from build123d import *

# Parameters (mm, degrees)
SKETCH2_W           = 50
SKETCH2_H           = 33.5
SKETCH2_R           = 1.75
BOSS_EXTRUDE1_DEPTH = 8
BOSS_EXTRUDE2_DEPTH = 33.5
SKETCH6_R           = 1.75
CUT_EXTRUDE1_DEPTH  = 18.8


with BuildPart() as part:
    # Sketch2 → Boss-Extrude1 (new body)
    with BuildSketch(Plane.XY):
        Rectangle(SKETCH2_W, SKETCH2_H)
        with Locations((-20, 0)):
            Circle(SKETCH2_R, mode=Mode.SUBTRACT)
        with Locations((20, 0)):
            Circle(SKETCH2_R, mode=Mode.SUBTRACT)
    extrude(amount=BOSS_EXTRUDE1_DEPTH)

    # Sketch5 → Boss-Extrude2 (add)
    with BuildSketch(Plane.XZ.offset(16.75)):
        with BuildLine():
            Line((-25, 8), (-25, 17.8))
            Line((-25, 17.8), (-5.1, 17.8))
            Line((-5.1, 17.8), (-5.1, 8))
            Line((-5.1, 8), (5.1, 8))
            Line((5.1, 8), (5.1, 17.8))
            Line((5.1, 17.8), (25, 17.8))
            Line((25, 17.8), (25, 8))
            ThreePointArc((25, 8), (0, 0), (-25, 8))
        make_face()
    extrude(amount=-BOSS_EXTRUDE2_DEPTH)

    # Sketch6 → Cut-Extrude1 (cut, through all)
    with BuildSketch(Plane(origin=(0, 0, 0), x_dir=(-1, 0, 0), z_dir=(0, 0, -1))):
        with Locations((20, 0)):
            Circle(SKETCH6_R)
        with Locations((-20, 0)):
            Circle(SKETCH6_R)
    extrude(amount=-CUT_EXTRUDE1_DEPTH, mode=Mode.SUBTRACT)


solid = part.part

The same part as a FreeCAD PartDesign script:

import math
import FreeCAD as App
import Part
import Sketcher
from FreeCAD import Vector
Q = App.Units.Quantity

doc = App.newDocument("Part")
body = doc.addObject("PartDesign::Body", "Body")

# Sketch on XY plane
sketch1 = body.newObject("Sketcher::SketchObject", "Sketch")
sketch1.AttachmentSupport = (doc.getObject("XY_Plane"), [""])
sketch1.MapMode = "FlatFace"
sketch1.addGeometry(Part.LineSegment(Vector(-25, 16.75, 0), Vector(-25, -16.75, 0)), False)
sketch1.addGeometry(Part.LineSegment(Vector(-25, -16.75, 0), Vector(25, -16.75, 0)), False)
sketch1.addGeometry(Part.LineSegment(Vector(25, -16.75, 0), Vector(25, 16.75, 0)), False)
sketch1.addGeometry(Part.LineSegment(Vector(25, 16.75, 0), Vector(-25, 16.75, 0)), False)
sketch1.addGeometry(Part.Circle(Vector(-20, 0, 0), Vector(0, 0, 1), 1.75), False)
sketch1.addGeometry(Part.Circle(Vector(20, 0, 0), Vector(0, 0, 1), 1.75), False)
sketch1.addConstraint(Sketcher.Constraint("Coincident", 0, 2, 1, 1))
sketch1.addConstraint(Sketcher.Constraint("Coincident", 1, 2, 2, 1))
sketch1.addConstraint(Sketcher.Constraint("Coincident", 2, 2, 3, 1))
sketch1.addConstraint(Sketcher.Constraint("Coincident", 3, 2, 0, 1))
sketch1.addConstraint(Sketcher.Constraint("Vertical", 0))
sketch1.addConstraint(Sketcher.Constraint("Horizontal", 1))
sketch1.addConstraint(Sketcher.Constraint("Vertical", 2))
sketch1.addConstraint(Sketcher.Constraint("Horizontal", 3))
sketch1.addConstraint(Sketcher.Constraint("Equal", 4, 5))
sketch1.addConstraint(Sketcher.Constraint("Symmetric", 4, 3, 5, 3, -1, 1))
sketch1.addConstraint(Sketcher.Constraint("Symmetric", 0, 2, 2, 2, -1, 1))
sketch1.addConstraint(Sketcher.Constraint("PointOnObject", 4, 3, -1))
sketch1.addConstraint(Sketcher.Constraint("Diameter", 4, Q("3.5 mm")))
sketch1.addConstraint(Sketcher.Constraint("DistanceX", 1, 1, 1, 2, Q("50 mm")))
sketch1.addConstraint(Sketcher.Constraint("DistanceY", 0, 2, 0, 1, Q("33.5 mm")))
sketch1.addConstraint(Sketcher.Constraint("DistanceX", 4, 3, -1, 1, Q("20 mm")))
pad1 = body.newObject("PartDesign::Pad", "Pad")
pad1.Profile = sketch1
pad1.Length = 8

# Sketch on XZ plane
sketch2 = body.newObject("Sketcher::SketchObject", "Sketch001")
sketch2.AttachmentSupport = (doc.getObject("XZ_Plane"), [""])
sketch2.MapMode = "FlatFace"
sketch2.AttachmentOffset = App.Placement(Vector(0, 0, 16.75), App.Rotation())
sketch2.addGeometry(Part.LineSegment(Vector(-25, 17.8, 0), Vector(-25, 8, 0)), False)
sketch2.addGeometry(Part.ArcOfCircle(Part.Circle(Vector(0, 43.0625, 0), Vector(0, 0, 1), 43.0625), math.radians(-125.489343), math.radians(-54.510657)), False)
sketch2.addGeometry(Part.LineSegment(Vector(25, 8, 0), Vector(25, 17.8, 0)), False)
sketch2.addGeometry(Part.LineSegment(Vector(25, 17.8, 0), Vector(5.1, 17.8, 0)), False)
sketch2.addGeometry(Part.LineSegment(Vector(5.1, 17.8, 0), Vector(5.1, 8, 0)), False)
sketch2.addGeometry(Part.LineSegment(Vector(5.1, 8, 0), Vector(-5.1, 8, 0)), False)
sketch2.addGeometry(Part.LineSegment(Vector(-5.1, 8, 0), Vector(-5.1, 17.8, 0)), False)
sketch2.addGeometry(Part.LineSegment(Vector(-5.1, 17.8, 0), Vector(-25, 17.8, 0)), False)
sketch2.addConstraint(Sketcher.Constraint("Coincident", 0, 2, 1, 1))
sketch2.addConstraint(Sketcher.Constraint("Coincident", 1, 2, 2, 1))
sketch2.addConstraint(Sketcher.Constraint("Coincident", 2, 2, 3, 1))
sketch2.addConstraint(Sketcher.Constraint("Coincident", 3, 2, 4, 1))
sketch2.addConstraint(Sketcher.Constraint("Coincident", 4, 2, 5, 1))
sketch2.addConstraint(Sketcher.Constraint("Coincident", 5, 2, 6, 1))
sketch2.addConstraint(Sketcher.Constraint("Coincident", 6, 2, 7, 1))
sketch2.addConstraint(Sketcher.Constraint("Coincident", 7, 2, 0, 1))
sketch2.addConstraint(Sketcher.Constraint("Vertical", 0))
sketch2.addConstraint(Sketcher.Constraint("Vertical", 2))
sketch2.addConstraint(Sketcher.Constraint("Horizontal", 3))
sketch2.addConstraint(Sketcher.Constraint("Vertical", 4))
sketch2.addConstraint(Sketcher.Constraint("Horizontal", 5))
sketch2.addConstraint(Sketcher.Constraint("Vertical", 6))
sketch2.addConstraint(Sketcher.Constraint("Horizontal", 7))
sketch2.addConstraint(Sketcher.Constraint("Symmetric", 0, 2, 1, 2, -2))
sketch2.addConstraint(Sketcher.Constraint("Symmetric", 3, 2, 6, 2, -2))
sketch2.addConstraint(Sketcher.Constraint("Horizontal", 1, 2, 4, 2))
sketch2.addConstraint(Sketcher.Constraint("DistanceX", 3, 2, 3, 1, Q("19.9 mm")))
sketch2.addConstraint(Sketcher.Constraint("DistanceX", 5, 2, 5, 1, Q("10.2 mm")))
sketch2.addConstraint(Sketcher.Constraint("DistanceY", 0, 2, 0, 1, Q("9.8 mm")))
sketch2.addConstraint(Sketcher.Constraint("DistanceY", -1, 1, 0, 2, Q("8 mm")))
sketch2.addConstraint(Sketcher.Constraint("Radius", 1, Q("43.0625 mm")))
pad2 = body.newObject("PartDesign::Pad", "Pad001")
pad2.Profile = sketch2
pad2.Length = 33.5
pad2.Reversed = True

# Sketch on XY plane
sketch3 = body.newObject("Sketcher::SketchObject", "Sketch002")
sketch3.AttachmentSupport = (doc.getObject("XY_Plane"), [""])
sketch3.MapMode = "FlatFace"
sketch3.addGeometry(Part.Circle(Vector(-20, 0, 0), Vector(0, 0, 1), 1.75), False)
sketch3.addGeometry(Part.Circle(Vector(20, 0, 0), Vector(0, 0, 1), 1.75), False)
sketch3.addConstraint(Sketcher.Constraint("Equal", 0, 1))
sketch3.addConstraint(Sketcher.Constraint("Symmetric", 0, 3, 1, 3, -1, 1))
sketch3.addConstraint(Sketcher.Constraint("PointOnObject", 0, 3, -1))
sketch3.addConstraint(Sketcher.Constraint("Diameter", 0, Q("3.5 mm")))
sketch3.addConstraint(Sketcher.Constraint("DistanceX", 0, 3, -1, 1, Q("20 mm")))
pocket1 = body.newObject("PartDesign::Pocket", "Pocket")
pocket1.Profile = sketch3
pocket1.Type = "ThroughAll"
pocket1.Reversed = True

doc.recompute()
